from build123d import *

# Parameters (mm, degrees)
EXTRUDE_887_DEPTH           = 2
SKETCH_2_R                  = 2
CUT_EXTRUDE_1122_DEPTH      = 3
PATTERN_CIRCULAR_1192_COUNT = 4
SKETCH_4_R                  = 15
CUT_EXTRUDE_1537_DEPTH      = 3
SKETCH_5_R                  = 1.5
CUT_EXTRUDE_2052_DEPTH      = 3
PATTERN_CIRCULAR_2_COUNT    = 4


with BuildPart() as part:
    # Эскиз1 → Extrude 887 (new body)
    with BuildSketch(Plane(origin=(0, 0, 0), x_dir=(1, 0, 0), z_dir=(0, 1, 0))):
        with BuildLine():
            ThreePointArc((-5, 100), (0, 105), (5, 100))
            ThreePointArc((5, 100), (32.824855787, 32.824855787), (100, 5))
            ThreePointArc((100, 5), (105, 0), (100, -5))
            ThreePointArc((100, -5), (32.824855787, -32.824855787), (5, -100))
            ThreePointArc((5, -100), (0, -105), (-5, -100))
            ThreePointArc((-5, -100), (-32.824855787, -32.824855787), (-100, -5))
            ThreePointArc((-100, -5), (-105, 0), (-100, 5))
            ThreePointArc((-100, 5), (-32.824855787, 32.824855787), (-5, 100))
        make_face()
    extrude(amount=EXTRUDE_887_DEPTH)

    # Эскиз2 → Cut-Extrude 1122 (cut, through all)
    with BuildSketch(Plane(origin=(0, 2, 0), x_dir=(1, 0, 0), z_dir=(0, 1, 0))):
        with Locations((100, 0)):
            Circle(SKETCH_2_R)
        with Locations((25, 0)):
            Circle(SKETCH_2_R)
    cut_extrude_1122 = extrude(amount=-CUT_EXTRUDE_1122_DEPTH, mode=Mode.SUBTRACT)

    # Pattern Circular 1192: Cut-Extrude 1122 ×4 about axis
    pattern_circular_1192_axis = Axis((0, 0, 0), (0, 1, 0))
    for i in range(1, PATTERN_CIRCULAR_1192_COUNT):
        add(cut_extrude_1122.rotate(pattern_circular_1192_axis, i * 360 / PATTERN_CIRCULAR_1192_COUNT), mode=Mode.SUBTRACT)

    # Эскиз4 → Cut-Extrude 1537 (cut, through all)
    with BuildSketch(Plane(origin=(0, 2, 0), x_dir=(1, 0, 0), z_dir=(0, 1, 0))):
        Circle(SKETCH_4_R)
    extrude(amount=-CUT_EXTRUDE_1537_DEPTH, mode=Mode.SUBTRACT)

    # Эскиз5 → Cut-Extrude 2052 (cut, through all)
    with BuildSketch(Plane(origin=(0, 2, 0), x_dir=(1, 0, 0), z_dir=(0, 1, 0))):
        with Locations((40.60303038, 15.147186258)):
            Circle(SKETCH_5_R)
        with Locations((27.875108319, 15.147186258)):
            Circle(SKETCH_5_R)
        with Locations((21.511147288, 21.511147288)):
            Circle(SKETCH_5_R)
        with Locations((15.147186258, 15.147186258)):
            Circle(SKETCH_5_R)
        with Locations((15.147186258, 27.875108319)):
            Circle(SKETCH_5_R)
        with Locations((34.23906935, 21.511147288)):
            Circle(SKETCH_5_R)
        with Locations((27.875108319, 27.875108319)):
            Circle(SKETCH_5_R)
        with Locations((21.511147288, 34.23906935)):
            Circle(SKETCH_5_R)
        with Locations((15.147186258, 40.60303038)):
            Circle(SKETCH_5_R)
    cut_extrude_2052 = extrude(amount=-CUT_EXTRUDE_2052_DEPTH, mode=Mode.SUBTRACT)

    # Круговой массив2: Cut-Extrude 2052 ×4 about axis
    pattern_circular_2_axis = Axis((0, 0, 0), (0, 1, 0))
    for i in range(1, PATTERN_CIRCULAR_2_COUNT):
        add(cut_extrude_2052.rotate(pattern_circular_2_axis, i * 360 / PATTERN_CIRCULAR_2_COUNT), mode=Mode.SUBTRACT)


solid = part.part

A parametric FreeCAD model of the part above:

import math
import FreeCAD as App
import Part
import Sketcher

V = App.Vector
Q = App.Units.Quantity

doc = App.newDocument("Part")
body = doc.addObject("PartDesign::Body", "Body")

# Sketch on XZ plane
sketch1 = body.newObject("Sketcher::SketchObject", "Sketch")
sketch1.AttachmentSupport = (doc.getObject("XZ_Plane"), [""])
sketch1.MapMode = "FlatFace"
sketch1.addGeometry([
    Part.ArcOfCircle(Part.Circle(V(0, -100, 0), V(0, 0, 1), 5), math.radians(180), math.radians(360)),  # 0
    Part.ArcOfCircle(Part.Circle(V(-100, -100, 0), V(0, 0, 1), 95), math.radians(0), math.radians(90)),  # 1
    Part.ArcOfCircle(Part.Circle(V(-100, 0, 0), V(0, 0, 1), 5), math.radians(90), math.radians(270)),  # 2
    Part.ArcOfCircle(Part.Circle(V(-100, 100, 0), V(0, 0, 1), 95), math.radians(-90), math.radians(0)),  # 3
    Part.ArcOfCircle(Part.Circle(V(0, 100, 0), V(0, 0, 1), 5), math.radians(0), math.radians(180)),  # 4
    Part.ArcOfCircle(Part.Circle(V(100, 100, 0), V(0, 0, 1), 95), math.radians(180), math.radians(270)),  # 5
    Part.ArcOfCircle(Part.Circle(V(100, 0, 0), V(0, 0, 1), 5), math.radians(-90), math.radians(90)),  # 6
    Part.ArcOfCircle(Part.Circle(V(100, -100, 0), V(0, 0, 1), 95), math.radians(90), math.radians(180)),  # 7
], False)
sketch1.addConstraint([
    Sketcher.Constraint("Tangent", 0, 1, 1, 1),
    Sketcher.Constraint("Tangent", 1, 2, 2, 2),
    Sketcher.Constraint("Tangent", 2, 1, 3, 1),
    Sketcher.Constraint("Tangent", 3, 2, 4, 2),
    Sketcher.Constraint("Tangent", 4, 1, 5, 1),
    Sketcher.Constraint("Tangent", 5, 2, 6, 2),
    Sketcher.Constraint("Tangent", 6, 1, 7, 1),
    Sketcher.Constraint("Tangent", 7, 2, 0, 2),
    Sketcher.Constraint("Equal", 0, 2),
    Sketcher.Constraint("Equal", 1, 3),
    Sketcher.Constraint("Equal", 2, 4),
    Sketcher.Constraint("Equal", 3, 5),
    Sketcher.Constraint("Equal", 4, 6),
    Sketcher.Constraint("Equal", 5, 7),
    Sketcher.Constraint("Symmetric", 0, 3, 4, 3, -1, 1),
    Sketcher.Constraint("Symmetric", 2, 3, 6, 3, -1, 1),
    Sketcher.Constraint("Symmetric", 3, 3, 5, 3, -2),
    Sketcher.Constraint("Horizontal", 0, 3, 1, 3),
    Sketcher.Constraint("Vertical", 1, 3, 2, 3),
    Sketcher.Constraint("Radius", 0, Q("5 mm")),
    Sketcher.Constraint("Radius", 1, Q("95 mm")),
])
pad1 = body.newObject("PartDesign::Pad", "Pad")
pad1.Profile = sketch1
pad1.Length = 2
pad1.Reversed = True

# Sketch on XZ plane
sketch2 = body.newObject("Sketcher::SketchObject", "Sketch001")
sketch2.AttachmentSupport = (doc.getObject("XZ_Plane"), [""])
sketch2.MapMode = "FlatFace"
sketch2.AttachmentOffset = App.Placement(V(0, 0, -2), App.Rotation())
sketch2.addGeometry([
    Part.Circle(V(100, 0, 0), V(0, 0, 1), 2),
    Part.Circle(V(25, 0, 0), V(0, 0, 1), 2),
], False)
sketch2.addConstraint([
    Sketcher.Constraint("Equal", 0, 1),
    Sketcher.Constraint("PointOnObject", 0, 3, -1),
    Sketcher.Constraint("PointOnObject", 1, 3, -1),
    Sketcher.Constraint("Diameter", 0, Q("4 mm")),
    Sketcher.Constraint("DistanceX", -1, 1, 0, 3, Q("100 mm")),
    Sketcher.Constraint("DistanceX", -1, 1, 1, 3, Q("25 mm")),
])
pocket1 = body.newObject("PartDesign::Pocket", "Pocket")
pocket1.Profile = sketch2
pocket1.Type = "ThroughAll"
pocket1.Reversed = True
doc.recompute()

polarpattern = body.newObject("PartDesign::PolarPattern", "PolarPattern")
polarpattern.Originals = [pocket1]
polarpattern.Axis = (doc.getObject("Y_Axis"), [""])
polarpattern.Angle = 360
polarpattern.Occurrences = 4
body.Tip = polarpattern

# Sketch on XZ plane
sketch3 = body.newObject("Sketcher::SketchObject", "Sketch002")
sketch3.AttachmentSupport = (doc.getObject("XZ_Plane"), [""])
sketch3.MapMode = "FlatFace"
sketch3.AttachmentOffset = App.Placement(V(0, 0, -2), App.Rotation())
sketch3.addGeometry(Part.Circle(V(0, 0, 0), V(0, 0, 1), 15), False)
sketch3.addConstraint([
    Sketcher.Constraint("Coincident", 0, 3, -1, 1),
    Sketcher.Constraint("Diameter", 0, Q("30 mm")),
])
pocket2 = body.newObject("PartDesign::Pocket", "Pocket001")
pocket2.Profile = sketch3
pocket2.Type = "ThroughAll"
pocket2.Reversed = True

# Sketch on XZ plane
sketch4 = body.newObject("Sketcher::SketchObject", "Sketch003")
sketch4.AttachmentSupport = (doc.getObject("XZ_Plane"), [""])
sketch4.MapMode = "FlatFace"
sketch4.AttachmentOffset = App.Placement(V(0, 0, -2), App.Rotation())
sketch4.addGeometry([
    Part.Circle(V(40.6, -15.1, 0), V(0, 0, 1), 1.5),  # 0
    Part.Circle(V(27.9, -15.1, 0), V(0, 0, 1), 1.5),  # 1
    Part.Circle(V(21.5, -21.5, 0), V(0, 0, 1), 1.5),  # 2
    Part.Circle(V(15.1, -15.1, 0), V(0, 0, 1), 1.5),  # 3
    Part.Circle(V(15.1, -27.9, 0), V(0, 0, 1), 1.5),  # 4
    Part.Circle(V(34.2, -21.5, 0), V(0, 0, 1), 1.5),  # 5
    Part.Circle(V(27.9, -27.9, 0), V(0, 0, 1), 1.5),  # 6
    Part.Circle(V(21.5, -34.2, 0), V(0, 0, 1), 1.5),  # 7
    Part.Circle(V(15.1, -40.6, 0), V(0, 0, 1), 1.5),  # 8
], False)
sketch4.addConstraint([
    Sketcher.Constraint("Equal", 0, 1),
    Sketcher.Constraint("Equal", 1, 2),
    Sketcher.Constraint("Equal", 2, 3),
    Sketcher.Constraint("Equal", 3, 4),
    Sketcher.Constraint("Equal", 4, 5),
    Sketcher.Constraint("Equal", 5, 6),
    Sketcher.Constraint("Equal", 6, 7),
    Sketcher.Constraint("Equal", 7, 8),
    Sketcher.Constraint("Horizontal", 0, 3, 1, 3),
    Sketcher.Constraint("Horizontal", 1, 3, 3, 3),
    Sketcher.Constraint("Horizontal", 2, 3, 5, 3),
    Sketcher.Constraint("Horizontal", 4, 3, 6, 3),
    Sketcher.Constraint("Vertical", 3, 3, 4, 3),
    Sketcher.Constraint("Vertical", 1, 3, 6, 3),
    Sketcher.Constraint("Vertical", 2, 3, 7, 3),
    Sketcher.Constraint("Vertical", 4, 3, 8, 3),
    Sketcher.Constraint("Diameter", 0, Q("3 mm")),
    Sketcher.Constraint("DistanceX", -1, 1, 0, 3, Q("40.60303 mm")),
    Sketcher.Constraint("DistanceX", -1, 1, 1, 3, Q("27.875108 mm")),
    Sketcher.Constraint("DistanceY", 4, 3, -1, 1, Q("27.875108 mm")),
    Sketcher.Constraint("DistanceX", -1, 1, 5, 3, Q("34.239069 mm")),
    Sketcher.Constraint("DistanceY", 7, 3, -1, 1, Q("34.239069 mm")),
    Sketcher.Constraint("DistanceY", 8, 3, -1, 1, Q("40.60303 mm")),
    Sketcher.Constraint("DistanceX", 2, 3, 1, 3, Q("6.363961 mm")),
    Sketcher.Constraint("DistanceY", 2, 3, 1, 3, Q("6.363961 mm")),
    Sketcher.Constraint("DistanceX", 3, 3, 2, 3, Q("6.363961 mm")),
    Sketcher.Constraint("DistanceY", 4, 3, 2, 3, Q("6.363961 mm")),
])
pocket3 = body.newObject("PartDesign::Pocket", "Pocket002")
pocket3.Profile = sketch4
pocket3.Type = "ThroughAll"
pocket3.Reversed = True
doc.recompute()

polarpattern2 = body.newObject("PartDesign::PolarPattern", "PolarPattern001")
polarpattern2.Originals = [pocket3]
polarpattern2.Axis = (doc.getObject("Y_Axis"), [""])
polarpattern2.Angle = 360
polarpattern2.Occurrences = 4
body.Tip = polarpattern2

doc.recompute()
